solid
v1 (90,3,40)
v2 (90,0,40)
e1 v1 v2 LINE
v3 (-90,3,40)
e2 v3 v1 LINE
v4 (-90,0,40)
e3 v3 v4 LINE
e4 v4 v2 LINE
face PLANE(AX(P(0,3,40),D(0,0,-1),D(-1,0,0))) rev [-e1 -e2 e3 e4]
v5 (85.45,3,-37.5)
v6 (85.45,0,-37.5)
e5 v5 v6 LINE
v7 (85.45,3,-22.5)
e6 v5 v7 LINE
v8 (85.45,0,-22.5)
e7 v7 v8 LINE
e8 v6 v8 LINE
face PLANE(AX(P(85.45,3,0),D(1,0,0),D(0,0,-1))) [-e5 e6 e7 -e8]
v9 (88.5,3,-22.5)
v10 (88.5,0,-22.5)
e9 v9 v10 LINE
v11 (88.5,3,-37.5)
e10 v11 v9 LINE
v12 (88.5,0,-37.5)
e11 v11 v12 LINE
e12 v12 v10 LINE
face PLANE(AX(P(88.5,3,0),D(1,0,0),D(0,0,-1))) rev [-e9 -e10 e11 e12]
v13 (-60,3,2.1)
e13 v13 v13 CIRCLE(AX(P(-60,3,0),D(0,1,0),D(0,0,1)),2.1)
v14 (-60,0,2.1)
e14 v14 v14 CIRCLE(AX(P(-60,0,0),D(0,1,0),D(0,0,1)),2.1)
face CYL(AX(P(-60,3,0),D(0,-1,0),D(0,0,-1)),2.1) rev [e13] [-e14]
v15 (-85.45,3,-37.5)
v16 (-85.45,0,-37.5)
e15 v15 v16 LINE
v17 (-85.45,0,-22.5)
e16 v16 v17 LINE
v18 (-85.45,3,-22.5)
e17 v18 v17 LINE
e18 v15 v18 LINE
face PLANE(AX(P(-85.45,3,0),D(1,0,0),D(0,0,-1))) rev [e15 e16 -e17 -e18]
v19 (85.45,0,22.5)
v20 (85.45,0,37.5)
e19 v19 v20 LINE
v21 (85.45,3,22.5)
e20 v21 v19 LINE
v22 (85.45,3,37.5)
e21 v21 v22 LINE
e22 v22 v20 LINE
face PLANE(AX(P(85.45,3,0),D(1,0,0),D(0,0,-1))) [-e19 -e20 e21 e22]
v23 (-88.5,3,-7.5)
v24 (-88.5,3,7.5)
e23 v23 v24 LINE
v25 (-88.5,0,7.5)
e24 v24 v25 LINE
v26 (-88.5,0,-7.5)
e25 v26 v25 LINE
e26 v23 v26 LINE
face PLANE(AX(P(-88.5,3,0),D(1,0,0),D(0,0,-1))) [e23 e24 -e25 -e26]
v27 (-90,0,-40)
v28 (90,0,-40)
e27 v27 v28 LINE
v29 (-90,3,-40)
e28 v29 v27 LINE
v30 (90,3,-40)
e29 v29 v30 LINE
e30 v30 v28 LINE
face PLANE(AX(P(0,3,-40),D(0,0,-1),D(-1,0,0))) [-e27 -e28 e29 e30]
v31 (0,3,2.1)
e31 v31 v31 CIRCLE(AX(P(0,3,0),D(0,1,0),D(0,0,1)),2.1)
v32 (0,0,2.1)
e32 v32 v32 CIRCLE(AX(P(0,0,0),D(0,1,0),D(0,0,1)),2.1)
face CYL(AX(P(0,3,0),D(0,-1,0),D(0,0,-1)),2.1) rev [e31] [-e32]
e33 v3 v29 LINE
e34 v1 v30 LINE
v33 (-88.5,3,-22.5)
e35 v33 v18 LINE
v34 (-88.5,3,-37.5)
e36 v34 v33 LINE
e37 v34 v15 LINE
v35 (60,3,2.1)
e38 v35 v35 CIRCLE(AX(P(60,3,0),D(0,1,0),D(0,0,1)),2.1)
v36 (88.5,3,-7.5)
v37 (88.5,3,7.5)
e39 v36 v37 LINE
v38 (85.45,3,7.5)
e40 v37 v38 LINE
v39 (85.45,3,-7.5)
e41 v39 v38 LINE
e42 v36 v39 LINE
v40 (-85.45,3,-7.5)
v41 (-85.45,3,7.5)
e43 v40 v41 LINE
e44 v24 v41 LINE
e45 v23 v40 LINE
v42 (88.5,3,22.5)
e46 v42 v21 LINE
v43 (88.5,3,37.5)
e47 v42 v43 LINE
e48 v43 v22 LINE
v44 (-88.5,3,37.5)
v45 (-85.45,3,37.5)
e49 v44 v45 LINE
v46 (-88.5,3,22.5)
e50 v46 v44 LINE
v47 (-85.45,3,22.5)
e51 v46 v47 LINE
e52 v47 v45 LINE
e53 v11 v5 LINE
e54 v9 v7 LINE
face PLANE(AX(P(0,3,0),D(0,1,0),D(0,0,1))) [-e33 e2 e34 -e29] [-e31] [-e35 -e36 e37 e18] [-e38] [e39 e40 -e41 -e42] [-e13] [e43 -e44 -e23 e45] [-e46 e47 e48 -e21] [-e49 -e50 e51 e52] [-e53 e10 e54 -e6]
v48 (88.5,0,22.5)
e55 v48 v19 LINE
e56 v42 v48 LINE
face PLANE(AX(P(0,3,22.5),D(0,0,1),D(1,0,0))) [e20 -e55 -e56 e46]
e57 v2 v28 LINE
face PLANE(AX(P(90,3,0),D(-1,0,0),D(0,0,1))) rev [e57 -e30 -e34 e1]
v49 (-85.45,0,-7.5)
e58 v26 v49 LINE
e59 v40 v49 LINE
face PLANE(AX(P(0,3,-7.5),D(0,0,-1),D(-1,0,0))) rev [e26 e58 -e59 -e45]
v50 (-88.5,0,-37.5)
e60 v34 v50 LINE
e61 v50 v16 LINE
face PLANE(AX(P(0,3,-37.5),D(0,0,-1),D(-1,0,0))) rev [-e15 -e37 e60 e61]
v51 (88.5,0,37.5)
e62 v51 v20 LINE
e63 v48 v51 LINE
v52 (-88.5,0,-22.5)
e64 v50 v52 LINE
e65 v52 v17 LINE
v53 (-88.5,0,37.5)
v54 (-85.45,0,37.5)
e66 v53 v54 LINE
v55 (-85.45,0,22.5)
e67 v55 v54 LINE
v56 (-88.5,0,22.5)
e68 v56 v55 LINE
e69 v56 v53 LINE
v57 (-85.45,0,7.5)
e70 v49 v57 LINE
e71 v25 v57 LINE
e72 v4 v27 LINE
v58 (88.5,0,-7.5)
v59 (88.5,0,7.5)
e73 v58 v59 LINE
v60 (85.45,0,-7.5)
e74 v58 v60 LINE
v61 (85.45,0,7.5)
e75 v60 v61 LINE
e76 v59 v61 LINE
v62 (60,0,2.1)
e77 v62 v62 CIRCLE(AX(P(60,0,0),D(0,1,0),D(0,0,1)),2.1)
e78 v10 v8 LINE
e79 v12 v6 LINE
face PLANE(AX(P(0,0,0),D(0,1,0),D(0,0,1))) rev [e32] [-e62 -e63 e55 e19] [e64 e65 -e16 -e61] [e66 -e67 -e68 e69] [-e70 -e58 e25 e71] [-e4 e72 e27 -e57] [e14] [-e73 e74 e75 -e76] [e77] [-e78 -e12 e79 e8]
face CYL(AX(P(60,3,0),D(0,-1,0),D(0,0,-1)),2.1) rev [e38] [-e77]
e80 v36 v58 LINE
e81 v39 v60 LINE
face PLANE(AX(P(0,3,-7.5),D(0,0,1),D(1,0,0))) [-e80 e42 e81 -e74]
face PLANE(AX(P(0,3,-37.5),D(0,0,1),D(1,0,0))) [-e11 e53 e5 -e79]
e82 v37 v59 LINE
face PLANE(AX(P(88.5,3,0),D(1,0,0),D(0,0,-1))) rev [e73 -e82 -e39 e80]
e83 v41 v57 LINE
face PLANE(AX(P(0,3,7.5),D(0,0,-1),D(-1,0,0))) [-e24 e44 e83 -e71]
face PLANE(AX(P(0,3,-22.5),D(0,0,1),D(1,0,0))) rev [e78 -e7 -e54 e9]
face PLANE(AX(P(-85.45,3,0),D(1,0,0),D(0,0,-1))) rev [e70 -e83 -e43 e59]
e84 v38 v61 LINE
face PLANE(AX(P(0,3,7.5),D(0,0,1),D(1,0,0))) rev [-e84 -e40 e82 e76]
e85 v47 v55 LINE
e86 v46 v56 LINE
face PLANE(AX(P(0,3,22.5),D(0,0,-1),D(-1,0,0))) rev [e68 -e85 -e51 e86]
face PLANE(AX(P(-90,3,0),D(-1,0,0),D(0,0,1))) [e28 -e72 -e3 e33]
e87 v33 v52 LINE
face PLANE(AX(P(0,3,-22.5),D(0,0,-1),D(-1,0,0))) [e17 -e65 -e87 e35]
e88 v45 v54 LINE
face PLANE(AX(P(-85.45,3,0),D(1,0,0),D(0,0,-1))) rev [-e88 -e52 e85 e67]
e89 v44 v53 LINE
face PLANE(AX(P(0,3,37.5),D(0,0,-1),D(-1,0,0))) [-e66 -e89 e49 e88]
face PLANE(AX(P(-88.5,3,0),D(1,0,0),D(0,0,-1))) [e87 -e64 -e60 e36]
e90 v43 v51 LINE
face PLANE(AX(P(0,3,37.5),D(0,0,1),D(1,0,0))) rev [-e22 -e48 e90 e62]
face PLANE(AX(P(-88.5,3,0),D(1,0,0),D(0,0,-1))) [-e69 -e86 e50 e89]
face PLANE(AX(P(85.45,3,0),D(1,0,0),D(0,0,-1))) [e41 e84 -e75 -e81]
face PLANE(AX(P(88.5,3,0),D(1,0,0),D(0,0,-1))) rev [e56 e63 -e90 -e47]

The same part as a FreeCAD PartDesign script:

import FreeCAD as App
import Part
import Sketcher
Q = App.Units.Quantity

doc = App.newDocument("Part")
params = doc.addObject("Spreadsheet::Sheet", "Params")
for row, (alias, value) in enumerate([
    ("sketch1_diameter", "4.2 mm"),
    ("sketch1_width", "180 mm"),
    ("sketch1_height", "80 mm"),
    ("sketch1_height2", "15 mm"),
    ("sketch1_width2", "3.05 mm"),
    ("pad1_length", "3 mm"),
], start=1):
    params.set(f"A{row}", alias)
    params.set(f"B{row}", "=" + value)
    params.setAlias(f"B{row}", alias)

body = doc.addObject("PartDesign::Body", "Body")

sketch1 = body.newObject("Sketcher::SketchObject", "Sketch")
sketch1.AttachmentSupport = (doc.getObject("XZ_Plane"), [""])
sketch1.MapMode = "FlatFace"
sketch1.addGeometry(Part.LineSegment(App.Vector(-90, -40, 0), App.Vector(-90, 40, 0)), False)
sketch1.addGeometry(Part.LineSegment(App.Vector(-90, 40, 0), App.Vector(90, 40, 0)), False)
sketch1.addGeometry(Part.LineSegment(App.Vector(90, 40, 0), App.Vector(90, -40, 0)), False)
sketch1.addGeometry(Part.LineSegment(App.Vector(90, -40, 0), App.Vector(-90, -40, 0)), False)
sketch1.addGeometry(Part.LineSegment(App.Vector(-85.5, 37.5, 0), App.Vector(-88.5, 37.5, 0)), False)
sketch1.addGeometry(Part.LineSegment(App.Vector(-88.5, 37.5, 0), App.Vector(-88.5, 22.5, 0)), False)
sketch1.addGeometry(Part.LineSegment(App.Vector(-88.5, 22.5, 0), App.Vector(-85.5, 22.5, 0)), False)
sketch1.addGeometry(Part.LineSegment(App.Vector(-85.5, 22.5, 0), App.Vector(-85.5, 37.5, 0)), False)
sketch1.addGeometry(Part.LineSegment(App.Vector(88.5, 37.5, 0), App.Vector(85.5, 37.5, 0)), False)
sketch1.addGeometry(Part.LineSegment(App.Vector(85.5, 37.5, 0), App.Vector(85.5, 22.5, 0)), False)
sketch1.addGeometry(Part.LineSegment(App.Vector(85.5, 22.5, 0), App.Vector(88.5, 22.5, 0)), False)
sketch1.addGeometry(Part.LineSegment(App.Vector(88.5, 22.5, 0), App.Vector(88.5, 37.5, 0)), False)
sketch1.addGeometry(Part.LineSegment(App.Vector(-85.5, 7.5, 0), App.Vector(-88.5, 7.5, 0)), False)
sketch1.addGeometry(Part.LineSegment(App.Vector(-88.5, 7.5, 0), App.Vector(-88.5, -7.5, 0)), False)
sketch1.addGeometry(Part.LineSegment(App.Vector(-88.5, -7.5, 0), App.Vector(-85.5, -7.5, 0)), False)
sketch1.addGeometry(Part.LineSegment(App.Vector(-85.5, -7.5, 0), App.Vector(-85.5, 7.5, 0)), False)
sketch1.addGeometry(Part.Circle(App.Vector(-60, 0, 0), App.Vector(0, 0, 1), 2.1), False)
sketch1.addGeometry(Part.LineSegment(App.Vector(-85.5, -22.5, 0), App.Vector(-88.5, -22.5, 0)), False)
sketch1.addGeometry(Part.LineSegment(App.Vector(-88.5, -22.5, 0), App.Vector(-88.5, -37.5, 0)), False)
sketch1.addGeometry(Part.LineSegment(App.Vector(-88.5, -37.5, 0), App.Vector(-85.5, -37.5, 0)), False)
sketch1.addGeometry(Part.LineSegment(App.Vector(-85.5, -37.5, 0), App.Vector(-85.5, -22.5, 0)), False)
sketch1.addGeometry(Part.Circle(App.Vector(0, 0, 0), App.Vector(0, 0, 1), 2.1), False)
sketch1.addGeometry(Part.Circle(App.Vector(60, 0, 0), App.Vector(0, 0, 1), 2.1), False)
sketch1.addGeometry(Part.LineSegment(App.Vector(88.5, 7.5, 0), App.Vector(85.5, 7.5, 0)), False)
sketch1.addGeometry(Part.LineSegment(App.Vector(85.5, 7.5, 0), App.Vector(85.5, -7.5, 0)), False)
sketch1.addGeometry(Part.LineSegment(App.Vector(85.5, -7.5, 0), App.Vector(88.5, -7.5, 0)), False)
sketch1.addGeometry(Part.LineSegment(App.Vector(88.5, -7.5, 0), App.Vector(88.5, 7.5, 0)), False)
sketch1.addGeometry(Part.LineSegment(App.Vector(88.5, -22.5, 0), App.Vector(85.5, -22.5, 0)), False)
sketch1.addGeometry(Part.LineSegment(App.Vector(85.5, -22.5, 0), App.Vector(85.5, -37.5, 0)), False)
sketch1.addGeometry(Part.LineSegment(App.Vector(85.5, -37.5, 0), App.Vector(88.5, -37.5, 0)), False)
sketch1.addGeometry(Part.LineSegment(App.Vector(88.5, -37.5, 0), App.Vector(88.5, -22.5, 0)), False)
sketch1.addConstraint(Sketcher.Constraint("Coincident", 0, 2, 1, 1))
sketch1.addConstraint(Sketcher.Constraint("Coincident", 1, 2, 2, 1))
sketch1.addConstraint(Sketcher.Constraint("Coincident", 2, 2, 3, 1))
sketch1.addConstraint(Sketcher.Constraint("Coincident", 3, 2, 0, 1))
sketch1.addConstraint(Sketcher.Constraint("Coincident", 4, 2, 5, 1))
sketch1.addConstraint(Sketcher.Constraint("Coincident", 5, 2, 6, 1))
sketch1.addConstraint(Sketcher.Constraint("Coincident", 6, 2, 7, 1))
sketch1.addConstraint(Sketcher.Constraint("Coincident", 7, 2, 4, 1))
sketch1.addConstraint(Sketcher.Constraint("Coincident", 8, 2, 9, 1))
sketch1.addConstraint(Sketcher.Constraint("Coincident", 9, 2, 10, 1))
sketch1.addConstraint(Sketcher.Constraint("Coincident", 10, 2, 11, 1))
sketch1.addConstraint(Sketcher.Constraint("Coincident", 11, 2, 8, 1))
sketch1.addConstraint(Sketcher.Constraint("Coincident", 12, 2, 13, 1))
sketch1.addConstraint(Sketcher.Constraint("Coincident", 13, 2, 14, 1))
sketch1.addConstraint(Sketcher.Constraint("Coincident", 14, 2, 15, 1))
sketch1.addConstraint(Sketcher.Constraint("Coincident", 15, 2, 12, 1))
sketch1.addConstraint(Sketcher.Constraint("Coincident", 17, 2, 18, 1))
sketch1.addConstraint(Sketcher.Constraint("Coincident", 18, 2, 19, 1))
sketch1.addConstraint(Sketcher.Constraint("Coincident", 19, 2, 20, 1))
sketch1.addConstraint(Sketcher.Constraint("Coincident", 20, 2, 17, 1))
sketch1.addConstraint(Sketcher.Constraint("Coincident", 23, 2, 24, 1))
sketch1.addConstraint(Sketcher.Constraint("Coincident", 24, 2, 25, 1))
sketch1.addConstraint(Sketcher.Constraint("Coincident", 25, 2, 26, 1))
sketch1.addConstraint(Sketcher.Constraint("Coincident", 26, 2, 23, 1))
sketch1.addConstraint(Sketcher.Constraint("Coincident", 27, 2, 28, 1))
sketch1.addConstraint(Sketcher.Constraint("Coincident", 28, 2, 29, 1))
sketch1.addConstraint(Sketcher.Constraint("Coincident", 29, 2, 30, 1))
sketch1.addConstraint(Sketcher.Constraint("Coincident", 30, 2, 27, 1))
sketch1.addConstraint(Sketcher.Constraint("Vertical", 0))
sketch1.addConstraint(Sketcher.Constraint("Horizontal", 1))
sketch1.addConstraint(Sketcher.Constraint("Vertical", 2))
sketch1.addConstraint(Sketcher.Constraint("Horizontal", 3))
sketch1.addConstraint(Sketcher.Constraint("Horizontal", 4))
sketch1.addConstraint(Sketcher.Constraint("Vertical", 5))
sketch1.addConstraint(Sketcher.Constraint("Horizontal", 6))
sketch1.addConstraint(Sketcher.Constraint("Vertical", 7))
sketch1.addConstraint(Sketcher.Constraint("Horizontal", 8))
sketch1.addConstraint(Sketcher.Constraint("Vertical", 9))
sketch1.addConstraint(Sketcher.Constraint("Horizontal", 10))
sketch1.addConstraint(Sketcher.Constraint("Vertical", 11))
sketch1.addConstraint(Sketcher.Constraint("Horizontal", 12))
sketch1.addConstraint(Sketcher.Constraint("Vertical", 13))
sketch1.addConstraint(Sketcher.Constraint("Horizontal", 14))
sketch1.addConstraint(Sketcher.Constraint("Vertical", 15))
sketch1.addConstraint(Sketcher.Constraint("Horizontal", 17))
sketch1.addConstraint(Sketcher.Constraint("Vertical", 18))
sketch1.addConstraint(Sketcher.Constraint("Horizontal", 19))
sketch1.addConstraint(Sketcher.Constraint("Vertical", 20))
sketch1.addConstraint(Sketcher.Constraint("Horizontal", 23))
sketch1.addConstraint(Sketcher.Constraint("Vertical", 24))
sketch1.addConstraint(Sketcher.Constraint("Horizontal", 25))
sketch1.addConstraint(Sketcher.Constraint("Vertical", 26))
sketch1.addConstraint(Sketcher.Constraint("Horizontal", 27))
sketch1.addConstraint(Sketcher.Constraint("Vertical", 28))
sketch1.addConstraint(Sketcher.Constraint("Horizontal", 29))
sketch1.addConstraint(Sketcher.Constraint("Vertical", 30))
sketch1.addConstraint(Sketcher.Constraint("Coincident", 21, 3, -1, 1))
sketch1.addConstraint(Sketcher.Constraint("Equal", 16, 21))
sketch1.addConstraint(Sketcher.Constraint("Equal", 21, 22))
sketch1.addConstraint(Sketcher.Constraint("Symmetric", 16, 3, 22, 3, -1, 1))
sketch1.addConstraint(Sketcher.Constraint("Symmetric", 0, 2, 2, 2, -1, 1))
sketch1.addConstraint(Sketcher.Constraint("Symmetric", 10, 2, 17, 2, -1, 1))
sketch1.addConstraint(Sketcher.Constraint("Symmetric", 8, 2, 19, 2, -1, 1))
sketch1.addConstraint(Sketcher.Constraint("Symmetric", 14, 2, 23, 2, -1, 1))
sketch1.addConstraint(Sketcher.Constraint("Symmetric", 12, 2, 25, 2, -1, 1))
sketch1.addConstraint(Sketcher.Constraint("Symmetric", 6, 2, 27, 2, -1, 1))
sketch1.addConstraint(Sketcher.Constraint("Symmetric", 4, 2, 29, 2, -1, 1))
sketch1.addConstraint(Sketcher.Constraint("Symmetric", 7, 2, 8, 2, -2))
sketch1.addConstraint(Sketcher.Constraint("Symmetric", 5, 2, 10, 2, -2))
sketch1.addConstraint(Sketcher.Constraint("PointOnObject", 16, 3, -1))
sketch1.addConstraint(Sketcher.Constraint("Horizontal", 15, 2, 23, 2))
sketch1.addConstraint(Sketcher.Constraint("Vertical", 5, 2, 12, 2))
sketch1.addConstraint(Sketcher.Constraint("Vertical", 7, 2, 14, 2))
sketch1.addConstraint(Sketcher.Constraint("Equal", 11, 13))
sketch1.addConstraint(Sketcher.Constraint("Diameter", 16, Q("4.2 mm")))
sketch1.addConstraint(Sketcher.Constraint("DistanceX", 1, 1, 1, 2, Q("180 mm")))
sketch1.addConstraint(Sketcher.Constraint("DistanceY", 0, 1, 0, 2, Q("80 mm")))
sketch1.addConstraint(Sketcher.Constraint("DistanceY", 5, 2, 5, 1, Q("15 mm")))
sketch1.addConstraint(Sketcher.Constraint("DistanceX", 16, 3, -1, 1, Q("60 mm")))
sketch1.addConstraint(Sketcher.Constraint("DistanceY", 12, 2, 5, 2, Q("15 mm")))
sketch1.addConstraint(Sketcher.Constraint("DistanceX", 4, 2, 4, 1, Q("3.05 mm")))
sketch1.addConstraint(Sketcher.Constraint("DistanceX", 4, 2, -1, 1, Q("88.5 mm")))
sketch1.setExpression("Constraints[74]", "Params.sketch1_diameter")
sketch1.setExpression("Constraints[75]", "Params.sketch1_width")
sketch1.setExpression("Constraints[76]", "Params.sketch1_height")
sketch1.setExpression("Constraints[77]", "Params.sketch1_height2")
sketch1.setExpression("Constraints[80]", "Params.sketch1_width2")
pad1 = body.newObject("PartDesign::Pad", "Pad")
pad1.Profile = sketch1
pad1.setExpression("Length", "Params.pad1_length")
pad1.Reversed = True

doc.recompute()
